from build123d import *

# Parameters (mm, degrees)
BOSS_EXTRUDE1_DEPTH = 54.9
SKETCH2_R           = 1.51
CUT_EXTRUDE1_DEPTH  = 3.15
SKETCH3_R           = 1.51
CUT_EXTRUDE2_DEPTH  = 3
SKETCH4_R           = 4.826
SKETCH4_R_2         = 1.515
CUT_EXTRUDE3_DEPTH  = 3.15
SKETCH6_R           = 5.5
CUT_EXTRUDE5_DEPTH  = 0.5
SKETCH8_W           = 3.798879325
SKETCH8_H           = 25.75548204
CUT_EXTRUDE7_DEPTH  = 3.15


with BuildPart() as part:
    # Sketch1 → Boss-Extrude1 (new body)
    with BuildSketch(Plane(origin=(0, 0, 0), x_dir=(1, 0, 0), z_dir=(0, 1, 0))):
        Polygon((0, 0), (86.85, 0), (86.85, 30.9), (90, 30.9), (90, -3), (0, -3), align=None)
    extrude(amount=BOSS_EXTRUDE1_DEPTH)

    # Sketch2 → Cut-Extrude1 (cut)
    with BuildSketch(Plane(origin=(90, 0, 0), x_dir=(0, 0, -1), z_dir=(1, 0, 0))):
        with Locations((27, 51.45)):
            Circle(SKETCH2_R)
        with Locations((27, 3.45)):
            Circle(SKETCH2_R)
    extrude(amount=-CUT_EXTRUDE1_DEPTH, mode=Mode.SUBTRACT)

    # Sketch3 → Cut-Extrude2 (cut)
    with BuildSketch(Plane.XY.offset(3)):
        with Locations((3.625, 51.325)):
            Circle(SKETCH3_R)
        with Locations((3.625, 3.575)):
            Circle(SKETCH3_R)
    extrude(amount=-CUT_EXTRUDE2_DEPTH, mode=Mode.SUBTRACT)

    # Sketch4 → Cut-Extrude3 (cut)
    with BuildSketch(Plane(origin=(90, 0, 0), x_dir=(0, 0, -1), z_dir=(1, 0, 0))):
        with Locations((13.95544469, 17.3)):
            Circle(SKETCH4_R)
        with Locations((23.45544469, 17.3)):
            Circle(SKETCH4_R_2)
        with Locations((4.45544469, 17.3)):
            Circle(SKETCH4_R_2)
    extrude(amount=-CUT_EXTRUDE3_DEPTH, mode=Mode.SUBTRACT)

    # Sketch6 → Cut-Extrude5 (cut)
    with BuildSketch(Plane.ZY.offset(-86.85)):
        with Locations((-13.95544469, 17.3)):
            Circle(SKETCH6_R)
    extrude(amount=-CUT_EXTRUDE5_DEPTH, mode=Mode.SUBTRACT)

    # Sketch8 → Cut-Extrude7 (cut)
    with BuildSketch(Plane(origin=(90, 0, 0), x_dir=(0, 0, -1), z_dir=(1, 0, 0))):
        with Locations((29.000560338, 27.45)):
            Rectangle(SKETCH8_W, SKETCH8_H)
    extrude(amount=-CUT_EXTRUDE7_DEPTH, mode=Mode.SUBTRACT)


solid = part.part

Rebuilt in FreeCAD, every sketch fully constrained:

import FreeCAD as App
import Part
import Sketcher

V = App.Vector

doc = App.newDocument("Part")
params = doc.addObject("Spreadsheet::Sheet", "Params")
for row, (alias, value) in enumerate([
    ("sketch1_width", "90 mm"),
    ("sketch1_height", "3 mm"),
    ("sketch1_height2", "33.9 mm"),
    ("sketch1_width2", "86.85 mm"),
    ("pad1_length", "54.9 mm"),
    ("sketch2_diameter", "3.02 mm"),
    ("pocket1_length", "3.15 mm"),
    ("sketch3_diameter", "3.02 mm"),
    ("pocket2_length", "3 mm"),
    ("sketch4_diameter", "3.03 mm"),
    ("pocket3_length", "3.15 mm"),
    ("sketch5_diameter", "11 mm"),
    ("pocket4_length", "0.5 mm"),
    ("pocket5_length", "3.15 mm"),
], start=1):
    params.set(f"A{row}", alias)
    params.set(f"B{row}", "=" + value)
    params.setAlias(f"B{row}", alias)

body = doc.addObject("PartDesign::Body", "Body")

# Sketch on XZ plane
sketch1 = body.newObject("Sketcher::SketchObject", "Sketch")
sketch1.AttachmentSupport = (doc.getObject("XZ_Plane"), [""])
sketch1.MapMode = "FlatFace"
sketch1.addGeometry([
    Part.LineSegment(V(86.8, 0, 0), V(0, 0, 0)),  # 0
    Part.LineSegment(V(0, 0, 0), V(0, 3, 0)),  # 1
    Part.LineSegment(V(0, 3, 0), V(90, 3, 0)),  # 2
    Part.LineSegment(V(90, 3, 0), V(90, -30.9, 0)),  # 3
    Part.LineSegment(V(90, -30.9, 0), V(86.8, -30.9, 0)),  # 4
    Part.LineSegment(V(86.8, -30.9, 0), V(86.8, 0, 0)),  # 5
], False)
sketch1.addConstraint([
    Sketcher.Constraint("Coincident", 0, 2, 1, 1),
    Sketcher.Constraint("Coincident", 1, 2, 2, 1),
    Sketcher.Constraint("Coincident", 2, 2, 3, 1),
    Sketcher.Constraint("Coincident", 3, 2, 4, 1),
    Sketcher.Constraint("Coincident", 4, 2, 5, 1),
    Sketcher.Constraint("Coincident", 5, 2, 0, 1),
    Sketcher.Constraint("Horizontal", 0),
    Sketcher.Constraint("Vertical", 1),
    Sketcher.Constraint("Horizontal", 2),
    Sketcher.Constraint("Vertical", 3),
    Sketcher.Constraint("Horizontal", 4),
    Sketcher.Constraint("Vertical", 5),
    Sketcher.Constraint("Coincident", 0, 2, -1, 1),
    Sketcher.Constraint("DistanceX", 2, 1, 2, 2, 90.0),
    Sketcher.Constraint("DistanceY", 1, 1, 1, 2, 3.0),
    Sketcher.Constraint("DistanceY", 3, 2, 3, 1, 33.9),
    Sketcher.Constraint("DistanceX", 0, 2, 0, 1, 86.85),
])
sketch1.setExpression("Constraints[13]", "Params.sketch1_width")
sketch1.setExpression("Constraints[14]", "Params.sketch1_height")
sketch1.setExpression("Constraints[15]", "Params.sketch1_height2")
sketch1.setExpression("Constraints[16]", "Params.sketch1_width2")
pad1 = body.newObject("PartDesign::Pad", "Pad")
pad1.Profile = sketch1
pad1.setExpression("Length", "Params.pad1_length")
pad1.Reversed = True

# Sketch on YZ plane
sketch2 = body.newObject("Sketcher::SketchObject", "Sketch001")
sketch2.AttachmentSupport = (doc.getObject("YZ_Plane"), [""])
sketch2.MapMode = "FlatFace"
sketch2.AttachmentOffset = App.Placement(V(0, 0, 90), App.Rotation())
sketch2.addGeometry([
    Part.Circle(V(51.5, -27, 0), V(0, 0, 1), 1.5),
    Part.Circle(V(3.5, -27, 0), V(0, 0, 1), 1.5),
], False)
sketch2.addConstraint([
    Sketcher.Constraint("Equal", 0, 1),
    Sketcher.Constraint("Horizontal", 0, 3, 1, 3),
    Sketcher.Constraint("Diameter", 0, 3.02),
    Sketcher.Constraint("DistanceY", 0, 3, -1, 1, 27.0),
    Sketcher.Constraint("DistanceX", 1, 3, 0, 3, 48.0),
    Sketcher.Constraint("DistanceX", -1, 1, 0, 3, 51.45),
])
sketch2.setExpression("Constraints[2]", "Params.sketch2_diameter")
pocket1 = body.newObject("PartDesign::Pocket", "Pocket")
pocket1.Profile = sketch2
pocket1.setExpression("Length", "Params.pocket1_length")

# Sketch on XY plane
sketch3 = body.newObject("Sketcher::SketchObject", "Sketch002")
sketch3.AttachmentSupport = (doc.getObject("XY_Plane"), [""])
sketch3.MapMode = "FlatFace"
sketch3.AttachmentOffset = App.Placement(V(0, 0, 3), App.Rotation())
sketch3.addGeometry([
    Part.Circle(V(3.6, 51.3, 0), V(0, 0, 1), 1.5),
    Part.Circle(V(3.6, 3.6, 0), V(0, 0, 1), 1.5),
], False)
sketch3.addConstraint([
    Sketcher.Constraint("Equal", 0, 1),
    Sketcher.Constraint("Vertical", 0, 3, 1, 3),
    Sketcher.Constraint("Diameter", 0, 3.02),
    Sketcher.Constraint("DistanceY", 1, 3, 0, 3, 47.75),
    Sketcher.Constraint("DistanceX", -1, 1, 0, 3, 3.625),
    Sketcher.Constraint("DistanceY", -1, 1, 0, 3, 51.325),
])
sketch3.setExpression("Constraints[2]", "Params.sketch3_diameter")
pocket2 = body.newObject("PartDesign::Pocket", "Pocket001")
pocket2.Profile = sketch3
pocket2.setExpression("Length", "Params.pocket2_length")

# Sketch on YZ plane
sketch4 = body.newObject("Sketcher::SketchObject", "Sketch003")
sketch4.AttachmentSupport = (doc.getObject("YZ_Plane"), [""])
sketch4.MapMode = "FlatFace"
sketch4.AttachmentOffset = App.Placement(V(0, 0, 90), App.Rotation())
sketch4.addGeometry([
    Part.Circle(V(17.3, -14, 0), V(0, 0, 1), 4.8),
    Part.Circle(V(17.3, -23.5, 0), V(0, 0, 1), 1.5),
    Part.Circle(V(17.3, -4.5, 0), V(0, 0, 1), 1.5),
], False)
sketch4.addConstraint([
    Sketcher.Constraint("Equal", 1, 2),
    Sketcher.Constraint("Vertical", 0, 3, 1, 3),
    Sketcher.Constraint("Vertical", 1, 3, 2, 3),
    Sketcher.Constraint("Diameter", 1, 3.03),
    Sketcher.Constraint("Diameter", 0, 9.652),
    Sketcher.Constraint("DistanceY", 1, 3, 2, 3, 19.0),
    Sketcher.Constraint("DistanceX", -1, 1, 0, 3, 17.3),
    Sketcher.Constraint("DistanceY", 1, 3, 0, 3, 9.5),
    Sketcher.Constraint("DistanceY", 0, 3, -1, 1, 13.955445),
])
sketch4.setExpression("Constraints[3]", "Params.sketch4_diameter")
pocket3 = body.newObject("PartDesign::Pocket", "Pocket002")
pocket3.Profile = sketch4
pocket3.setExpression("Length", "Params.pocket3_length")

# Sketch on YZ plane
sketch5 = body.newObject("Sketcher::SketchObject", "Sketch004")
sketch5.AttachmentSupport = (doc.getObject("YZ_Plane"), [""])
sketch5.MapMode = "FlatFace"
sketch5.AttachmentOffset = App.Placement(V(0, 0, 86.85), App.Rotation())
sketch5.addGeometry(Part.Circle(V(17, -14, 0), V(0, 0, 1), 6), False)
sketch5.addConstraint([
    Sketcher.Constraint("Diameter", 0, 11.0),
    Sketcher.Constraint("DistanceX", -1, 1, 0, 3, 17.3),
    Sketcher.Constraint("DistanceY", 0, 3, -1, 1, 13.955445),
])
sketch5.setExpression("Constraints[0]", "Params.sketch5_diameter")
pocket4 = body.newObject("PartDesign::Pocket", "Pocket003")
pocket4.Profile = sketch5
pocket4.setExpression("Length", "Params.pocket4_length")
pocket4.Reversed = True

# Sketch on YZ plane
sketch6 = body.newObject("Sketcher::SketchObject", "Sketch005")
sketch6.AttachmentSupport = (doc.getObject("YZ_Plane"), [""])
sketch6.MapMode = "FlatFace"
sketch6.AttachmentOffset = App.Placement(V(0, 0, 90), App.Rotation())
sketch6.addGeometry([
    Part.LineSegment(V(40.3, -27.1, 0), V(14.6, -27.1, 0)),
    Part.LineSegment(V(14.6, -27.1, 0), V(14.6, -30.9, 0)),
    Part.LineSegment(V(14.6, -30.9, 0), V(40.3, -30.9, 0)),
    Part.LineSegment(V(40.3, -30.9, 0), V(40.3, -27.1, 0)),
], False)
sketch6.addConstraint([
    Sketcher.Constraint("Coincident", 0, 2, 1, 1),
    Sketcher.Constraint("Coincident", 1, 2, 2, 1),
    Sketcher.Constraint("Coincident", 2, 2, 3, 1),
    Sketcher.Constraint("Coincident", 3, 2, 0, 1),
    Sketcher.Constraint("Horizontal", 0),
    Sketcher.Constraint("Vertical", 1),
    Sketcher.Constraint("Horizontal", 2),
    Sketcher.Constraint("Vertical", 3),
    Sketcher.Constraint("DistanceY", 1, 2, -1, 1, 30.9),
    Sketcher.Constraint("DistanceY", 1, 2, 1, 1, 3.798879),
    Sketcher.Constraint("DistanceX", 0, 2, 0, 1, 25.755482),
    Sketcher.Constraint("DistanceX", -1, 1, 0, 2, 14.572259),
])
pocket5 = body.newObject("PartDesign::Pocket", "Pocket004")
pocket5.Profile = sketch6
pocket5.setExpression("Length", "Params.pocket5_length")

doc.recompute()
